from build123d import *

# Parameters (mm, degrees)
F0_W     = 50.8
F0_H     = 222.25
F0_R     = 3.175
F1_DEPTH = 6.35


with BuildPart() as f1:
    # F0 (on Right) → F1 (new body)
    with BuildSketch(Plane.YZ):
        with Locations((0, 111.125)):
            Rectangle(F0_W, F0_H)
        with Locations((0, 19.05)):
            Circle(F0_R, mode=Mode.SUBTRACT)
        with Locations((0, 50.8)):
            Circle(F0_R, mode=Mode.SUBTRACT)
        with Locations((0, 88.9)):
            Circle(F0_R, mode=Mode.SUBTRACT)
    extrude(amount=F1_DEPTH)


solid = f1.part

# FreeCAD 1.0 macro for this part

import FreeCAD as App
import Part
import Sketcher
Q = App.Units.Quantity

doc = App.newDocument("Part")
body = doc.addObject("PartDesign::Body", "Body")

sketch1 = doc.addObject("Sketcher::SketchObject", "Sketch")
body.addObject(sketch1)
sketch1.AttachmentSupport = (doc.YZ_Plane, [""])
sketch1.MapMode = "FlatFace"
sketch1.addGeometry(Part.LineSegment(App.Vector(-25.4, 222.2, 0), App.Vector(-25.4, 0, 0)), False)
sketch1.addGeometry(Part.LineSegment(App.Vector(-25.4, 0, 0), App.Vector(25.4, 0, 0)), False)
sketch1.addGeometry(Part.LineSegment(App.Vector(25.4, 0, 0), App.Vector(25.4, 222.2, 0)), False)
sketch1.addGeometry(Part.LineSegment(App.Vector(25.4, 222.2, 0), App.Vector(-25.4, 222.2, 0)), False)
sketch1.addGeometry(Part.Circle(App.Vector(0, 19.1, 0), App.Vector(0, 0, 1), 3.2), False)
sketch1.addGeometry(Part.Circle(App.Vector(0, 50.8, 0), App.Vector(0, 0, 1), 3.2), False)
sketch1.addGeometry(Part.Circle(App.Vector(0, 88.9, 0), App.Vector(0, 0, 1), 3.2), False)
sketch1.addConstraint(Sketcher.Constraint("Coincident", 0, 2, 1, 1))
sketch1.addConstraint(Sketcher.Constraint("Coincident", 1, 2, 2, 1))
sketch1.addConstraint(Sketcher.Constraint("Coincident", 2, 2, 3, 1))
sketch1.addConstraint(Sketcher.Constraint("Coincident", 3, 2, 0, 1))
sketch1.addConstraint(Sketcher.Constraint("Vertical", 0))
sketch1.addConstraint(Sketcher.Constraint("Horizontal", 1))
sketch1.addConstraint(Sketcher.Constraint("Vertical", 2))
sketch1.addConstraint(Sketcher.Constraint("Horizontal", 3))
sketch1.addConstraint(Sketcher.Constraint("Equal", 4, 5))
sketch1.addConstraint(Sketcher.Constraint("Equal", 5, 6))
sketch1.addConstraint(Sketcher.Constraint("Symmetric", 0, 2, 1, 2, -1, 1))
sketch1.addConstraint(Sketcher.Constraint("PointOnObject", 4, 3, -2))
sketch1.addConstraint(Sketcher.Constraint("PointOnObject", 5, 3, -2))
sketch1.addConstraint(Sketcher.Constraint("PointOnObject", 6, 3, -2))
sketch1.addConstraint(Sketcher.Constraint("Diameter", 4, Q("0.25 in")))
sketch1.addConstraint(Sketcher.Constraint("DistanceX", 1, 1, 1, 2, Q("2 in")))
sketch1.addConstraint(Sketcher.Constraint("DistanceY", -1, 1, 5, 3, Q("2 in")))
sketch1.addConstraint(Sketcher.Constraint("DistanceY", 4, 3, 2, 2, Q("8 in")))
sketch1.addConstraint(Sketcher.Constraint("DistanceY", 0, 2, 0, 1, Q("8.75 in")))
sketch1.addConstraint(Sketcher.Constraint("DistanceY", -1, 1, 6, 3, Q("3.5 in")))
pad1 = doc.addObject("PartDesign::Pad", "Pad")
body.addObject(pad1)
pad1.Profile = sketch1
pad1.Length = Q("0.25 in")

doc.recompute()
